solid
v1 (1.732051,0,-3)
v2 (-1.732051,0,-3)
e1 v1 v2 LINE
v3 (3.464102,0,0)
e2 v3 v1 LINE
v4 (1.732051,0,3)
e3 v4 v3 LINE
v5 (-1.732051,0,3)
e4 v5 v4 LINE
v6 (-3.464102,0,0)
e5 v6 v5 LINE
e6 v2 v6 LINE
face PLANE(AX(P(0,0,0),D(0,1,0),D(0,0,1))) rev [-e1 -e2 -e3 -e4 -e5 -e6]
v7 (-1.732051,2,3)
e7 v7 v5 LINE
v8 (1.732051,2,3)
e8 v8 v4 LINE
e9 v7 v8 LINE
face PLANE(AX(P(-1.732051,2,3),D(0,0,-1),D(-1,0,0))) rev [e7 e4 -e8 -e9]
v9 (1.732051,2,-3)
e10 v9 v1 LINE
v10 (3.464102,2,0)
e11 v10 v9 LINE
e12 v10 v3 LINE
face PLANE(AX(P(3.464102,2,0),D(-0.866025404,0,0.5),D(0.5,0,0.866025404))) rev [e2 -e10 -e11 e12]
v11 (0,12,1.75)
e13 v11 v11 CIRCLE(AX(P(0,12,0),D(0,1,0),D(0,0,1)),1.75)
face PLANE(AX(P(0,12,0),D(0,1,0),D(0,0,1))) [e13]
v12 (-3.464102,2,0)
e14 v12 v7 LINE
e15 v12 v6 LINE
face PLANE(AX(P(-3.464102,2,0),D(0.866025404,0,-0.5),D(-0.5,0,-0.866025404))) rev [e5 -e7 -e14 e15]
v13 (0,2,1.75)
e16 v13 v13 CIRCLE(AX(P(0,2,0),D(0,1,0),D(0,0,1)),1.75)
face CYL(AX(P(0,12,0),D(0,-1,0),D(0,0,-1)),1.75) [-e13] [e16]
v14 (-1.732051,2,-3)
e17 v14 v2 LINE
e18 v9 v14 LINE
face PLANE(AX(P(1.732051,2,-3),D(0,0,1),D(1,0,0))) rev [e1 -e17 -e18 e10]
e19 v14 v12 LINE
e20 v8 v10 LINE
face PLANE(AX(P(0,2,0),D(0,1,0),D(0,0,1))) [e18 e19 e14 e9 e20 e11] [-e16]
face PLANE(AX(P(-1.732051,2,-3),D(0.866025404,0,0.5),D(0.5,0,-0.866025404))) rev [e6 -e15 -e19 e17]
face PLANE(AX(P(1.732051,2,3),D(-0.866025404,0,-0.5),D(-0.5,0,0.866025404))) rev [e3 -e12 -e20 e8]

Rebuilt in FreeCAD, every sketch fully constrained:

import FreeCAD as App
import Part
import Sketcher
Q = App.Units.Quantity

doc = App.newDocument("Part")
params = doc.addObject("Spreadsheet::Sheet", "Params")
for row, (alias, value) in enumerate([
    ("pad1_length", "2 mm"),
    ("sketch2_diameter", "3.5 mm"),
    ("pad2_length", "10 mm"),
], start=1):
    params.set(f"A{row}", alias)
    params.set(f"B{row}", "=" + value)
    params.setAlias(f"B{row}", alias)

body = doc.addObject("PartDesign::Body", "Body")

sketch1 = body.newObject("Sketcher::SketchObject", "Sketch")
sketch1.AttachmentSupport = (doc.getObject("XZ_Plane"), [""])
sketch1.MapMode = "FlatFace"
sketch1.addGeometry(Part.LineSegment(App.Vector(1.732051, -3, 0), App.Vector(-1.732051, -3, 0)), False)
sketch1.addGeometry(Part.LineSegment(App.Vector(-1.732051, -3, 0), App.Vector(-3.464102, 0, 0)), False)
sketch1.addGeometry(Part.LineSegment(App.Vector(-3.464102, 0, 0), App.Vector(-1.732051, 3, 0)), False)
sketch1.addGeometry(Part.LineSegment(App.Vector(-1.732051, 3, 0), App.Vector(1.732051, 3, 0)), False)
sketch1.addGeometry(Part.LineSegment(App.Vector(1.732051, 3, 0), App.Vector(3.464102, 0, 0)), False)
sketch1.addGeometry(Part.LineSegment(App.Vector(3.464102, 0, 0), App.Vector(1.732051, -3, 0)), False)
sketch1.addConstraint(Sketcher.Constraint("Coincident", 0, 2, 1, 1))
sketch1.addConstraint(Sketcher.Constraint("Coincident", 1, 2, 2, 1))
sketch1.addConstraint(Sketcher.Constraint("Coincident", 2, 2, 3, 1))
sketch1.addConstraint(Sketcher.Constraint("Coincident", 3, 2, 4, 1))
sketch1.addConstraint(Sketcher.Constraint("Coincident", 4, 2, 5, 1))
sketch1.addConstraint(Sketcher.Constraint("Coincident", 5, 2, 0, 1))
sketch1.addConstraint(Sketcher.Constraint("Horizontal", 0))
sketch1.addConstraint(Sketcher.Constraint("Horizontal", 3))
sketch1.addConstraint(Sketcher.Constraint("Symmetric", 0, 2, 3, 2, -1, 1))
sketch1.addConstraint(Sketcher.Constraint("Symmetric", 1, 2, 4, 2, -1, 1))
sketch1.addConstraint(Sketcher.Constraint("PointOnObject", 1, 2, -1))
sketch1.addConstraint(Sketcher.Constraint("Parallel", 2, 5))
sketch1.addConstraint(Sketcher.Constraint("Vertical", 0, 2, 2, 2))
sketch1.addConstraint(Sketcher.Constraint("Angle", 1, Q("120 deg")))
sketch1.addConstraint(Sketcher.Constraint("DistanceY", 0, 2, -1, 1, 3.0))
sketch1.addConstraint(Sketcher.Constraint("DistanceX", 0, 2, 0, 1, 3.464102))
pad1 = body.newObject("PartDesign::Pad", "Pad")
pad1.Profile = sketch1
pad1.setExpression("Length", "Params.pad1_length")
pad1.Reversed = True

sketch2 = body.newObject("Sketcher::SketchObject", "Sketch001")
sketch2.AttachmentSupport = (doc.getObject("XZ_Plane"), [""])
sketch2.MapMode = "FlatFace"
sketch2.AttachmentOffset = App.Placement(App.Vector(0, 0, -2), App.Rotation())
sketch2.addGeometry(Part.Circle(App.Vector(0, 0, 0), App.Vector(0, 0, 1), 1.75), False)
sketch2.addConstraint(Sketcher.Constraint("Coincident", 0, 3, -1, 1))
sketch2.addConstraint(Sketcher.Constraint("Diameter", 0, 3.5))
sketch2.setExpression("Constraints[1]", "Params.sketch2_diameter")
pad2 = body.newObject("PartDesign::Pad", "Pad001")
pad2.Profile = sketch2
pad2.setExpression("Length", "Params.pad2_length")
pad2.Reversed = True

doc.recompute()
